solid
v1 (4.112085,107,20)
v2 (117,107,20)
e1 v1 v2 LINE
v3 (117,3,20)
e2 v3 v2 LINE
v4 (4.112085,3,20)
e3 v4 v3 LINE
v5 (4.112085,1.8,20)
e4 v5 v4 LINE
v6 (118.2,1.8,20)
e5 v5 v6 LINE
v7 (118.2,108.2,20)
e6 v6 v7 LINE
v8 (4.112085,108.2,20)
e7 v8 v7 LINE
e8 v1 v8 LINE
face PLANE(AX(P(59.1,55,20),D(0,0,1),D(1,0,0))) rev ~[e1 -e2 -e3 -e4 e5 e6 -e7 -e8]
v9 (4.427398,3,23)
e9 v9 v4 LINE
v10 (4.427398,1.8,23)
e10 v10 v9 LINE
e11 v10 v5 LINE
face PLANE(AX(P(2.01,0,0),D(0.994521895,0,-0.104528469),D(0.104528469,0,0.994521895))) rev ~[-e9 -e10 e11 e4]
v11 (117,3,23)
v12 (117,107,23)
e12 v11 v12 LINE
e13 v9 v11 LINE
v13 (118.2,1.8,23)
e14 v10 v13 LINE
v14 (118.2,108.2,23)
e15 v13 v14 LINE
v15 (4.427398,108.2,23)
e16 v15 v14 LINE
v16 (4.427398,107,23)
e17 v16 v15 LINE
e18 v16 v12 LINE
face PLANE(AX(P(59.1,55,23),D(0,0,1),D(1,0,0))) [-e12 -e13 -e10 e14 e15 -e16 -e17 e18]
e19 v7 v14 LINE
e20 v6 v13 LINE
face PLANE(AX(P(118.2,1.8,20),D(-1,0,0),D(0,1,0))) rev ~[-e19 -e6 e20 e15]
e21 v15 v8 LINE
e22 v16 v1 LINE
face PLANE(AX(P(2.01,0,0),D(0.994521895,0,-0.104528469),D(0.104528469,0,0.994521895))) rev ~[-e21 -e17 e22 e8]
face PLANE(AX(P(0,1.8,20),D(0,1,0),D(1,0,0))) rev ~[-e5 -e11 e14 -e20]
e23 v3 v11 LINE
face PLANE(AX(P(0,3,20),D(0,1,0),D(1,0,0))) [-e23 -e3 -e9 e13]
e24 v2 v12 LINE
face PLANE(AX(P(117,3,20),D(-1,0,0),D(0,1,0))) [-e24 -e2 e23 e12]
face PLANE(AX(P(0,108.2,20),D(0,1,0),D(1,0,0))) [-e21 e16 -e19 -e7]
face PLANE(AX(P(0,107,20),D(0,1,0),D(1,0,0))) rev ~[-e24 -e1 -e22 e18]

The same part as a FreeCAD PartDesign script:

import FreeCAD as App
import Part
import Sketcher

V = App.Vector
Q = App.Units.Quantity

doc = App.newDocument("Part")
body = doc.addObject("PartDesign::Body", "Body")

# Sketch on XZ plane
sketch1 = body.newObject("Sketcher::SketchObject", "Sketch")
sketch1.AttachmentSupport = (doc.getObject("XZ_Plane"), [""])
sketch1.MapMode = "FlatFace"
sketch1.addGeometry([
    Part.LineSegment(V(0, 0, 0), V(2, 0, 0)),
    Part.LineSegment(V(2, 0, 0), V(6.3, 40.3, 0)),
    Part.LineSegment(V(6.3, 40.3, 0), V(0, 40.3, 0)),
    Part.LineSegment(V(0, 40.3, 0), V(0, 0, 0)),
], False)
sketch1.addConstraint([
    Sketcher.Constraint("Coincident", 0, 2, 1, 1),
    Sketcher.Constraint("Coincident", 1, 2, 2, 1),
    Sketcher.Constraint("Coincident", 2, 2, 3, 1),
    Sketcher.Constraint("Coincident", 3, 2, 0, 1),
    Sketcher.Constraint("Horizontal", 0),
    Sketcher.Constraint("Horizontal", 2),
    Sketcher.Constraint("Vertical", 3),
    Sketcher.Constraint("Coincident", 3, 2, -1, 1),
    Sketcher.Constraint("Angle", 1, Q("84 deg")),
    Sketcher.Constraint("DistanceX", 0, 1, 0, 2, Q("2.01 mm")),
    Sketcher.Constraint("Distance", 1, Q("40.565772 mm")),
])
pad1 = body.newObject("PartDesign::Pad", "Pad")
pad1.Profile = sketch1
pad1.Length = 110
pad1.Reversed = True
body2 = doc.addObject("PartDesign::Body", "Body001")

# Sketch on XY plane
sketch2 = body2.newObject("Sketcher::SketchObject", "Sketch001")
sketch2.AttachmentSupport = (doc.getObject("XY_Plane001"), [""])
sketch2.MapMode = "FlatFace"
sketch2.addGeometry([
    Part.LineSegment(V(0, 105, 0), V(0, 1, 0)),
    Part.LineSegment(V(0, 1, 0), V(117, 1, 0)),
    Part.LineSegment(V(117, 1, 0), V(117, 105, 0)),
    Part.LineSegment(V(117, 105, 0), V(0, 105, 0)),
], False)
sketch2.addConstraint([
    Sketcher.Constraint("Coincident", 0, 2, 1, 1),
    Sketcher.Constraint("Coincident", 1, 2, 2, 1),
    Sketcher.Constraint("Coincident", 2, 2, 3, 1),
    Sketcher.Constraint("Coincident", 3, 2, 0, 1),
    Sketcher.Constraint("Vertical", 0),
    Sketcher.Constraint("Horizontal", 1),
    Sketcher.Constraint("Vertical", 2),
    Sketcher.Constraint("Horizontal", 3),
    Sketcher.Constraint("PointOnObject", 0, 2, -2),
    Sketcher.Constraint("DistanceX", 1, 1, 1, 2, Q("117 mm")),
    Sketcher.Constraint("DistanceY", 0, 2, 0, 1, Q("104 mm")),
    Sketcher.Constraint("DistanceY", -1, 1, 0, 2, Q("1.2 mm")),
])
pad2 = body2.newObject("PartDesign::Pad", "Pad001")
pad2.Profile = sketch2
pad2.Length = 3
body3 = doc.addObject("PartDesign::Body", "Body002")

# Sketch on XY plane
sketch3 = body3.newObject("Sketcher::SketchObject", "Sketch002")
sketch3.AttachmentSupport = (doc.getObject("XY_Plane002"), [""])
sketch3.MapMode = "FlatFace"
sketch3.addGeometry([
    Part.LineSegment(V(0, 106, 0), V(0, 0, 0)),
    Part.LineSegment(V(0, 0, 0), V(118, 0, 0)),
    Part.LineSegment(V(118, 0, 0), V(118, 106, 0)),
    Part.LineSegment(V(118, 106, 0), V(0, 106, 0)),
], False)
sketch3.addConstraint([
    Sketcher.Constraint("Coincident", 0, 2, 1, 1),
    Sketcher.Constraint("Coincident", 1, 2, 2, 1),
    Sketcher.Constraint("Coincident", 2, 2, 3, 1),
    Sketcher.Constraint("Coincident", 3, 2, 0, 1),
    Sketcher.Constraint("Vertical", 0),
    Sketcher.Constraint("Horizontal", 1),
    Sketcher.Constraint("Vertical", 2),
    Sketcher.Constraint("Horizontal", 3),
    Sketcher.Constraint("Coincident", 0, 2, -1, 1),
    Sketcher.Constraint("DistanceX", 1, 1, 1, 2, Q("118.2 mm")),
    Sketcher.Constraint("DistanceY", 0, 2, 0, 1, Q("106.4 mm")),
])
pad3 = body3.newObject("PartDesign::Pad", "Pad002")
pad3.Profile = sketch3
pad3.Length = 3
doc.recompute()

boolean = body3.newObject("PartDesign::Boolean", "Boolean")
boolean.Type = "Cut"
boolean.addObjects([body2])
body4 = doc.addObject("PartDesign::Body", "Body003")
doc.recompute()

body3.Placement = App.Placement(V(0, 1.8, 20), App.Rotation(V(0, 0, 1), 0))
boolean2 = body4.newObject("PartDesign::Boolean", "Boolean001")
boolean2.Type = "Fuse"
boolean2.addObjects([body3])
doc.recompute()

boolean3 = body4.newObject("PartDesign::Boolean", "Boolean002")
boolean3.Type = "Cut"
boolean3.addObjects([body])

doc.recompute()
